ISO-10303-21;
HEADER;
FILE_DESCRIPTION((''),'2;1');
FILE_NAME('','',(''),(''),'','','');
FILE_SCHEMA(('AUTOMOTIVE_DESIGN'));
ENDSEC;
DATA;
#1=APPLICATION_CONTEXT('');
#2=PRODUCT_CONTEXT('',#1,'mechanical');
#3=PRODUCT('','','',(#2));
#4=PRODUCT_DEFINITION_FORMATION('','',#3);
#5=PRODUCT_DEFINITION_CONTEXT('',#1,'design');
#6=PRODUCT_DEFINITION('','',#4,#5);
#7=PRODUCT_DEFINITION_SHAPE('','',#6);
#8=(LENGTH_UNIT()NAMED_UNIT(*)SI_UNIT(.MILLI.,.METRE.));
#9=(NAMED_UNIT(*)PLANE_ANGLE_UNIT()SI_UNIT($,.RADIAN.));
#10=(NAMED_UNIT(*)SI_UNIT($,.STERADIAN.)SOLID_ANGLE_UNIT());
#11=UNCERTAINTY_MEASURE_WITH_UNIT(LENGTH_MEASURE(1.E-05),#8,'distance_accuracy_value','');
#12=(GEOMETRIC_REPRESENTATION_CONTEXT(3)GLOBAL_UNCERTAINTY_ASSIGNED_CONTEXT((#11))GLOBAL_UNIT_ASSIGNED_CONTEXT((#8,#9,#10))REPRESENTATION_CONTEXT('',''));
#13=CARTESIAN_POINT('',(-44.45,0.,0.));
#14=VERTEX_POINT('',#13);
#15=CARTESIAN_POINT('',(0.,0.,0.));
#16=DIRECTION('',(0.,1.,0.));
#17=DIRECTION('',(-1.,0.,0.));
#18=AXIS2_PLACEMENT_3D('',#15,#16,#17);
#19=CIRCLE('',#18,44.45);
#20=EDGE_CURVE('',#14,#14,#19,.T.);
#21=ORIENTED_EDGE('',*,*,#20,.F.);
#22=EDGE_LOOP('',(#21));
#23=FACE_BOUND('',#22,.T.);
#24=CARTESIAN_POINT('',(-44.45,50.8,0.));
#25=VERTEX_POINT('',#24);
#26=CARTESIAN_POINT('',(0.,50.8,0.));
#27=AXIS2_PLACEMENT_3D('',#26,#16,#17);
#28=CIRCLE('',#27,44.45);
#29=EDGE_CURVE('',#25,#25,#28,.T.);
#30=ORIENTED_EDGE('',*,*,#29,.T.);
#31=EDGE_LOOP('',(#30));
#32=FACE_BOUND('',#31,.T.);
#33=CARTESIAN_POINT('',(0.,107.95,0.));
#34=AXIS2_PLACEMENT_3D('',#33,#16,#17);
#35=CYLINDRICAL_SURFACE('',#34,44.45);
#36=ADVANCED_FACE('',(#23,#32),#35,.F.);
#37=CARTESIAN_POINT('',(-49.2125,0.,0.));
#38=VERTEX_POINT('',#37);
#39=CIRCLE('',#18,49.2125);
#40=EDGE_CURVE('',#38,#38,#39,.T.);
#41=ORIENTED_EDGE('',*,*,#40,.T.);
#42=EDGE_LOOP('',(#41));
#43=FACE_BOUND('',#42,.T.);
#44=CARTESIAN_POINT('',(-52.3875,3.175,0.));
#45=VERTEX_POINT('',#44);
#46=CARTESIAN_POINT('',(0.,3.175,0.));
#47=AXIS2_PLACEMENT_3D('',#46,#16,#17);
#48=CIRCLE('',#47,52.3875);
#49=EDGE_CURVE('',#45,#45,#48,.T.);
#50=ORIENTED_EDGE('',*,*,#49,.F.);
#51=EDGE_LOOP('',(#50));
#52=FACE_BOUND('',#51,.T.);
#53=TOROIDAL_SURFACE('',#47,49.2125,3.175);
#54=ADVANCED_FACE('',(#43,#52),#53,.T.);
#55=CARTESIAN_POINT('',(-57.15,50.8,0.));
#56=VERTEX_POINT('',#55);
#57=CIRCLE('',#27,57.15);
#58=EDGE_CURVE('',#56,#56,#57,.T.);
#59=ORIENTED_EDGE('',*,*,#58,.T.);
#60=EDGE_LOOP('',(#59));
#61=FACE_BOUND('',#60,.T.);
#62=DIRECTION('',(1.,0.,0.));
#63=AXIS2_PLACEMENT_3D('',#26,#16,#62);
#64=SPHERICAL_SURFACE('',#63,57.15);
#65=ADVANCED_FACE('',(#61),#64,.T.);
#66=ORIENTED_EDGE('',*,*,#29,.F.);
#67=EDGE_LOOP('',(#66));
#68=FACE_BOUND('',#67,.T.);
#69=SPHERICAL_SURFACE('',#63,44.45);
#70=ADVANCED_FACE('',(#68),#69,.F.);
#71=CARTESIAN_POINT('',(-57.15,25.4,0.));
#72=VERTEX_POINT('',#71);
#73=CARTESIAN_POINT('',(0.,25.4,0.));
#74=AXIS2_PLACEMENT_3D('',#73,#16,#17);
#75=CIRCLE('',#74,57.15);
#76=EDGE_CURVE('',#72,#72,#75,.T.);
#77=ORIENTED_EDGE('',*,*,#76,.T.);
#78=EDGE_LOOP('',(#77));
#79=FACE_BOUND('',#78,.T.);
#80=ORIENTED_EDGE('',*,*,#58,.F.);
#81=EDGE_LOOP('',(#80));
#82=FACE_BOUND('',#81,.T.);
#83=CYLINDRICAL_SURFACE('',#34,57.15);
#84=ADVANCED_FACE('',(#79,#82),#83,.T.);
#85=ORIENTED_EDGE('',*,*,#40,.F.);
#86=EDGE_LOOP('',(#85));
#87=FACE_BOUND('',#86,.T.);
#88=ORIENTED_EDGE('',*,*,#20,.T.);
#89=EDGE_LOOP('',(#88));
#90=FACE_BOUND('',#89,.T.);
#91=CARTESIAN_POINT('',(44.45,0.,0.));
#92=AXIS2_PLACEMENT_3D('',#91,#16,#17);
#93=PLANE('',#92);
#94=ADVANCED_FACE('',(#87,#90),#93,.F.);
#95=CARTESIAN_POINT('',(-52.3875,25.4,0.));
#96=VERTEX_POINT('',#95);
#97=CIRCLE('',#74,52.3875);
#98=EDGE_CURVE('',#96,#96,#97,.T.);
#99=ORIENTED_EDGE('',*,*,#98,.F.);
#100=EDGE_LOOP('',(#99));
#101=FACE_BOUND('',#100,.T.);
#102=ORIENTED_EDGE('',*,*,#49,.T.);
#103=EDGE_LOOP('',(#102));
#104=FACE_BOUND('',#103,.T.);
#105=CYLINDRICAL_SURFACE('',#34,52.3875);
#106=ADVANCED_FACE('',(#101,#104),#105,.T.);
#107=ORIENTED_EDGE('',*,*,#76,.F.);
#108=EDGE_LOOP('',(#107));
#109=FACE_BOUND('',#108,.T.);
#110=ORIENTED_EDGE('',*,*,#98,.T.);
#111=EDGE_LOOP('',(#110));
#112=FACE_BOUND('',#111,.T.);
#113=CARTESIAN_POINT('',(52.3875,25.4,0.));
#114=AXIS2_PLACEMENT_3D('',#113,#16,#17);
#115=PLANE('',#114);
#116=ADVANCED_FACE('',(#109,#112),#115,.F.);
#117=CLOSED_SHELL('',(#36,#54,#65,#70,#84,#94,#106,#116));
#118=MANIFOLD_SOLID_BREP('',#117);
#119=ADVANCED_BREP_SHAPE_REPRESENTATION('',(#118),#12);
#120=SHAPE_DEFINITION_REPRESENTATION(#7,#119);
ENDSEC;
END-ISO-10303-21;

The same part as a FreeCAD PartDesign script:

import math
import FreeCAD as App
import Part
import Sketcher

V = App.Vector
Q = App.Units.Quantity

doc = App.newDocument("Part")
body = doc.addObject("PartDesign::Body", "Body")

# Sketch on XY plane
sketch1 = body.newObject("Sketcher::SketchObject", "Sketch")
sketch1.AttachmentSupport = (doc.getObject("XY_Plane"), [""])
sketch1.MapMode = "FlatFace"
sketch1.addGeometry([
    Part.LineSegment(V(44.5, 0, 0), V(49.2, 0, 0)),  # 0
    Part.ArcOfCircle(Part.Circle(V(49.2, 3.2, 0), V(0, 0, 1), 3.2), math.radians(-90), math.radians(0)),  # 1
    Part.LineSegment(V(52.4, 3.2, 0), V(52.4, 25.4, 0)),  # 2
    Part.LineSegment(V(52.4, 25.4, 0), V(57.1, 25.4, 0)),  # 3
    Part.LineSegment(V(57.1, 25.4, 0), V(57.1, 50.8, 0)),  # 4
    Part.ArcOfCircle(Part.Circle(V(0, 50.8, 0), V(0, 0, 1), 57.1), math.radians(0), math.radians(90)),  # 5
    Part.LineSegment(V(0, 108, 0), V(0, 95.2, 0)),  # 6
    Part.ArcOfCircle(Part.Circle(V(0, 50.8, 0), V(0, 0, 1), 44.4), math.radians(0), math.radians(90)),  # 7
    Part.LineSegment(V(44.5, 50.8, 0), V(44.5, 0, 0)),  # 8
], False)
sketch1.addConstraint([
    Sketcher.Constraint("Tangent", 0, 2, 1, 1),
    Sketcher.Constraint("Tangent", 1, 2, 2, 1),
    Sketcher.Constraint("Coincident", 2, 2, 3, 1),
    Sketcher.Constraint("Coincident", 3, 2, 4, 1),
    Sketcher.Constraint("Tangent", 4, 2, 5, 1),
    Sketcher.Constraint("Coincident", 5, 2, 6, 1),
    Sketcher.Constraint("Coincident", 6, 2, 7, 2),
    Sketcher.Constraint("Tangent", 7, 1, 8, 1),
    Sketcher.Constraint("Coincident", 8, 2, 0, 1),
    Sketcher.Constraint("Horizontal", 0),
    Sketcher.Constraint("Vertical", 2),
    Sketcher.Constraint("Horizontal", 3),
    Sketcher.Constraint("Vertical", 4),
    Sketcher.Constraint("Vertical", 6),
    Sketcher.Constraint("Vertical", 8),
    Sketcher.Constraint("Coincident", 7, 3, 5, 3),
    Sketcher.Constraint("PointOnObject", 5, 3, -2),
    Sketcher.Constraint("PointOnObject", 0, 2, -1),
    Sketcher.Constraint("PointOnObject", 5, 2, -2),
    Sketcher.Constraint("Equal", 0, 3),
    Sketcher.Constraint("DistanceY", 4, 1, 4, 2, Q("1 in")),
    Sketcher.Constraint("DistanceY", 8, 2, 8, 1, Q("2 in")),
    Sketcher.Constraint("Radius", 5, Q("2.25 in")),
    Sketcher.Constraint("Radius", 7, Q("1.75 in")),
    Sketcher.Constraint("Radius", 1, Q("0.125 in")),
])
revolution = body.newObject("PartDesign::Revolution", "Revolution")
revolution.Profile = sketch1
revolution.ReferenceAxis = (sketch1, ["V_Axis"])
revolution.Angle = 360

doc.recompute()
